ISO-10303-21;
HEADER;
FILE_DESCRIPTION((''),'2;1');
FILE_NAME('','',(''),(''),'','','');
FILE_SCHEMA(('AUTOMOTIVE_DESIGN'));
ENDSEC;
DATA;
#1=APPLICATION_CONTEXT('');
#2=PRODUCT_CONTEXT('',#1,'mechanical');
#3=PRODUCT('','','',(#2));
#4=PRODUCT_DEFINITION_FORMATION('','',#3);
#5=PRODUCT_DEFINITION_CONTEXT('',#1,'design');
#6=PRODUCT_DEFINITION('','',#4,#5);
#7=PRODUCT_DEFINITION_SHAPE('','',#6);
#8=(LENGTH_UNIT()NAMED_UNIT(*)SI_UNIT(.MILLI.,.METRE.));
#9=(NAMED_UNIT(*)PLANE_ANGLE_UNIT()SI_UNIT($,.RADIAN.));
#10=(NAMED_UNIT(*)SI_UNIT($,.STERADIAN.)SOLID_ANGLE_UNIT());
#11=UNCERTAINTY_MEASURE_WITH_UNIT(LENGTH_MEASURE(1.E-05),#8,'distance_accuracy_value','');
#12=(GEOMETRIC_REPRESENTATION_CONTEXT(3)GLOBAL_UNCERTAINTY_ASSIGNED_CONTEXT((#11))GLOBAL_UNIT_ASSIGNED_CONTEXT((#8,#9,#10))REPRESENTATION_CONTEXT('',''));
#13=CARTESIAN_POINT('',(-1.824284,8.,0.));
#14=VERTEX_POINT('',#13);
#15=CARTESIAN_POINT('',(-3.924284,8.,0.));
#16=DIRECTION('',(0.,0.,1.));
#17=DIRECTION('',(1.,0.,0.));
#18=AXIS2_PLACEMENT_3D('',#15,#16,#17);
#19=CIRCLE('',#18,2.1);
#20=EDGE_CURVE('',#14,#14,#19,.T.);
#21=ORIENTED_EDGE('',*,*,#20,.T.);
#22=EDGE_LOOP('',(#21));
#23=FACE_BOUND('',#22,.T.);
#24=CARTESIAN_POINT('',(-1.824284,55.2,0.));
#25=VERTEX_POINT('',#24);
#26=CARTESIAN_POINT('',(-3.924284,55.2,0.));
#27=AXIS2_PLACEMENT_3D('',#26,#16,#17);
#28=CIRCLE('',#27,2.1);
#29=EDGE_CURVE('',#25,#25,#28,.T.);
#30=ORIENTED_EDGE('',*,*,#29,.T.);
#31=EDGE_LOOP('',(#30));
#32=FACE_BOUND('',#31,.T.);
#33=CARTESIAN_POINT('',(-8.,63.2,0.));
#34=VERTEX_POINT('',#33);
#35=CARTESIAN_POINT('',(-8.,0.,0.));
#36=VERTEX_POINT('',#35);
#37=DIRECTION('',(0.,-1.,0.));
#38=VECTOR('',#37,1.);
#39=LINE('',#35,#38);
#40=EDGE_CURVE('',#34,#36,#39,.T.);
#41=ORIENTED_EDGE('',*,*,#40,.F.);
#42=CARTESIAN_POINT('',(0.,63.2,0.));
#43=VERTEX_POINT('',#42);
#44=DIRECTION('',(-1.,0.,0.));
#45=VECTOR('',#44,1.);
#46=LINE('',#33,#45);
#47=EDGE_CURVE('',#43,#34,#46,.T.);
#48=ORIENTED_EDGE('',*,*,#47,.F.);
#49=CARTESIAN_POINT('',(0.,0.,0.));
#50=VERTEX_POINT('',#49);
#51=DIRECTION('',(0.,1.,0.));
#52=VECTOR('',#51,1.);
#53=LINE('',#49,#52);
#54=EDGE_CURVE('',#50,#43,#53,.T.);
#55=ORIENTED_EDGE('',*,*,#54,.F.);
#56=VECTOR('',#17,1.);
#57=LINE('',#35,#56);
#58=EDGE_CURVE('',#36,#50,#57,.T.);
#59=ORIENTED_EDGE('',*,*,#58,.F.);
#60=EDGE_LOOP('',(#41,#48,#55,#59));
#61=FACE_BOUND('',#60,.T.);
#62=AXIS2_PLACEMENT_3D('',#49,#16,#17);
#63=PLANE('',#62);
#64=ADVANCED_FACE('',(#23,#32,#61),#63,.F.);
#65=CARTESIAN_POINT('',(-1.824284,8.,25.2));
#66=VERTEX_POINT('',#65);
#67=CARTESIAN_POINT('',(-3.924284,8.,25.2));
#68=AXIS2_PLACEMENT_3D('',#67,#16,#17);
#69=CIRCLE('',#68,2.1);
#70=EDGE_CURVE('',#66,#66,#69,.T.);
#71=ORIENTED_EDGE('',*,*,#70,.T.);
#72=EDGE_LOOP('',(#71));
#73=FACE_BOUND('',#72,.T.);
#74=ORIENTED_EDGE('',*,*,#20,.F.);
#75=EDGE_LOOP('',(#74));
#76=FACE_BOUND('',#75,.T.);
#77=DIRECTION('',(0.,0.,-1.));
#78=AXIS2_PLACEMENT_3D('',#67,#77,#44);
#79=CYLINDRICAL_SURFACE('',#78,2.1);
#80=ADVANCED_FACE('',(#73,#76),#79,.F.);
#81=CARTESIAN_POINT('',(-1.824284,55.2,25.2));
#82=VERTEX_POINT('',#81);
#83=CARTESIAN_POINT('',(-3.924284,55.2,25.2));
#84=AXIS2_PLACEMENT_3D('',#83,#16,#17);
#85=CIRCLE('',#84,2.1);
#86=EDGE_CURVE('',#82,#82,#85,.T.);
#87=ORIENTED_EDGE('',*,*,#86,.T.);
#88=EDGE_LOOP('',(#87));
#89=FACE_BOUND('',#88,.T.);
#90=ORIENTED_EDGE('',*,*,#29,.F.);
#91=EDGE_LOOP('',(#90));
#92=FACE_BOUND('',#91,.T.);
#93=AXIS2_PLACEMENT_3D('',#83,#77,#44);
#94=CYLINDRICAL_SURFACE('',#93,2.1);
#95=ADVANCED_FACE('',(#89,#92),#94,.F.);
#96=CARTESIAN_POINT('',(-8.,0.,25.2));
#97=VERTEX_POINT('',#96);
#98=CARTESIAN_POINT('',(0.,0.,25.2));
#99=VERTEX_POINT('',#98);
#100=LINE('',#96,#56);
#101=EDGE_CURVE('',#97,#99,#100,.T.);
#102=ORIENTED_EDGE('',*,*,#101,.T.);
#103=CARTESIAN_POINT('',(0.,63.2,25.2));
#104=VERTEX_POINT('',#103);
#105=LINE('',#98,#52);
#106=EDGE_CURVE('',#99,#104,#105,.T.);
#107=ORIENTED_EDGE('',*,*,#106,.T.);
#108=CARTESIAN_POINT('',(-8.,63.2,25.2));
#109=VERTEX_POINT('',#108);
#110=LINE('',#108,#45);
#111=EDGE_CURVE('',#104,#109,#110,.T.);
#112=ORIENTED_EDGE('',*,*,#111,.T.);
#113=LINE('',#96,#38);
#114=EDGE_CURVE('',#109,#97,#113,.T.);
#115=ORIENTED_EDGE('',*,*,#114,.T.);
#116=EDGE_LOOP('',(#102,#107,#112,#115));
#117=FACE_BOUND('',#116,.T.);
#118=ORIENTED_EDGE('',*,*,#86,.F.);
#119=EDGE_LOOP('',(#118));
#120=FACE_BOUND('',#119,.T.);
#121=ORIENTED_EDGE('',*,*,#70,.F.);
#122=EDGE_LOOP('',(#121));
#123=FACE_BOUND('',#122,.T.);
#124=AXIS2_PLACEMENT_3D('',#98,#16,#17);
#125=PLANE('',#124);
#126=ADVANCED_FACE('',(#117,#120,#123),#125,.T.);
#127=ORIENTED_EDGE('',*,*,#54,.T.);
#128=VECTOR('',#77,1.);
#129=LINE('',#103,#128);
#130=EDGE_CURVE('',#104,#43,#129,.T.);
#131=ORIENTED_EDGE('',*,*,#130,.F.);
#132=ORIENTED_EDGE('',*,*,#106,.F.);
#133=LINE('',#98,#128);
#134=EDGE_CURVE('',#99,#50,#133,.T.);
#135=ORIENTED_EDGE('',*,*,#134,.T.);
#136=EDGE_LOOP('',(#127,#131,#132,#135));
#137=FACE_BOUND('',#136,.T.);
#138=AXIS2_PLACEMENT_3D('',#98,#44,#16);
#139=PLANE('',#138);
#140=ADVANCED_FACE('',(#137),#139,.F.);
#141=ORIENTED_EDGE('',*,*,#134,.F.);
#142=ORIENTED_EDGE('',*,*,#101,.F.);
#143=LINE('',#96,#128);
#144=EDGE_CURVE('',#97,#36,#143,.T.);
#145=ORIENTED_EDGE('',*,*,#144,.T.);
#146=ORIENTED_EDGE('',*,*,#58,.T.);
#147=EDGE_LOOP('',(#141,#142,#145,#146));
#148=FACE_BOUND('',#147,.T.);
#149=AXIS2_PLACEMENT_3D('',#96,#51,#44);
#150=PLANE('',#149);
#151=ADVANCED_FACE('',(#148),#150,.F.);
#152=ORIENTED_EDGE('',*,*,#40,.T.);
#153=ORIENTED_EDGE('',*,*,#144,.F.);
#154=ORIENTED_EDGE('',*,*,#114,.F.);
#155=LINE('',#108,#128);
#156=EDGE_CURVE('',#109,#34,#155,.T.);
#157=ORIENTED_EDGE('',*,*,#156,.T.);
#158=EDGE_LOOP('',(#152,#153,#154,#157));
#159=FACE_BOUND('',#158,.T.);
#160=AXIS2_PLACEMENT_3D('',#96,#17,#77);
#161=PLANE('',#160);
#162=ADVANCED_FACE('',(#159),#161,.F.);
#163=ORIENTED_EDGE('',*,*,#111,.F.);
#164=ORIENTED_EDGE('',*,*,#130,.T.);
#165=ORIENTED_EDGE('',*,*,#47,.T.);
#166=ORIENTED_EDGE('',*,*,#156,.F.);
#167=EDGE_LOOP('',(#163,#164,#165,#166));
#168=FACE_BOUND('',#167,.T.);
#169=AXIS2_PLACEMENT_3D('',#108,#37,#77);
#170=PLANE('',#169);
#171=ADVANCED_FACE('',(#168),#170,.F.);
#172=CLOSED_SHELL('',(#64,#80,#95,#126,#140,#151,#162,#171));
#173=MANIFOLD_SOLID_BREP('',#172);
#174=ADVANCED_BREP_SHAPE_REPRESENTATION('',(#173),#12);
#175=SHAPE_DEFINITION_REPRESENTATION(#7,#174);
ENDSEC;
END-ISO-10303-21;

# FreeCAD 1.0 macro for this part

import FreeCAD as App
import Part
import Sketcher
from FreeCAD import Vector
Q = App.Units.Quantity


def add_polygon(sketch, points):
    """Adds a closed chain of lines whose ends are joined by coincident constraints."""
    first, n = sketch.GeometryCount, len(points)
    for a, b in zip(points, points[1:] + points[:1]):
        sketch.addGeometry(Part.LineSegment(App.Vector(*a, 0), App.Vector(*b, 0)), False)
    for i in range(n):
        sketch.addConstraint(Sketcher.Constraint("Coincident", first + i, 2, first + (i + 1) % n, 1))

doc = App.newDocument("Part")
params = doc.addObject("Spreadsheet::Sheet", "Params")
for row, (alias, value) in enumerate([
    ("sketch1_diameter", "4.2 mm"),
    ("sketch1_width", "8 mm"),
    ("sketch1_height", "63.2 mm"),
    ("pad1_length", "25.2 mm"),
], start=1):
    params.set(f"A{row}", alias)
    params.set(f"B{row}", "=" + value)
    params.setAlias(f"B{row}", alias)

body = doc.addObject("PartDesign::Body", "Body")

# Sketch on XY plane
sketch1 = doc.addObject("Sketcher::SketchObject", "Sketch")
body.addObject(sketch1)
sketch1.AttachmentSupport = (doc.XY_Plane, [""])
sketch1.MapMode = "FlatFace"
add_polygon(sketch1, [(-8, 0), (0, 0), (0, 63.2), (-8, 63.2)])  # lines 0-3
sketch1.addGeometry(Part.Circle(Vector(-3.9, 8, 0), Vector(0, 0, 1), 2.1), False)  # 4
sketch1.addGeometry(Part.Circle(Vector(-3.9, 55.2, 0), Vector(0, 0, 1), 2.1), False)  # 5
sketch1.addConstraint([
    Sketcher.Constraint("Horizontal", 0),
    Sketcher.Constraint("Vertical", 1),
    Sketcher.Constraint("Horizontal", 2),
    Sketcher.Constraint("Vertical", 3),
    Sketcher.Constraint("Coincident", 0, 2, -1, 1),
    Sketcher.Constraint("Equal", 4, 5),
    Sketcher.Constraint("Vertical", 4, 3, 5, 3),
    Sketcher.Constraint("Diameter", 4, Q("4.2 mm")),
    Sketcher.Constraint("DistanceX", 0, 1, 0, 2, Q("8 mm")),
    Sketcher.Constraint("DistanceY", 1, 1, 1, 2, Q("63.2 mm")),
    Sketcher.Constraint("DistanceY", -1, 1, 4, 3, Q("8 mm")),
    Sketcher.Constraint("DistanceY", 5, 3, 1, 2, Q("8 mm")),
    Sketcher.Constraint("DistanceX", 4, 3, -1, 1, Q("3.924284 mm")),
])
sketch1.setExpression("Constraints[11]", "Params.sketch1_diameter")
sketch1.setExpression("Constraints[12]", "Params.sketch1_width")
sketch1.setExpression("Constraints[13]", "Params.sketch1_height")
pad1 = doc.addObject("PartDesign::Pad", "Pad")
body.addObject(pad1)
pad1.Profile = sketch1
pad1.setExpression("Length", "Params.pad1_length")

doc.recompute()
